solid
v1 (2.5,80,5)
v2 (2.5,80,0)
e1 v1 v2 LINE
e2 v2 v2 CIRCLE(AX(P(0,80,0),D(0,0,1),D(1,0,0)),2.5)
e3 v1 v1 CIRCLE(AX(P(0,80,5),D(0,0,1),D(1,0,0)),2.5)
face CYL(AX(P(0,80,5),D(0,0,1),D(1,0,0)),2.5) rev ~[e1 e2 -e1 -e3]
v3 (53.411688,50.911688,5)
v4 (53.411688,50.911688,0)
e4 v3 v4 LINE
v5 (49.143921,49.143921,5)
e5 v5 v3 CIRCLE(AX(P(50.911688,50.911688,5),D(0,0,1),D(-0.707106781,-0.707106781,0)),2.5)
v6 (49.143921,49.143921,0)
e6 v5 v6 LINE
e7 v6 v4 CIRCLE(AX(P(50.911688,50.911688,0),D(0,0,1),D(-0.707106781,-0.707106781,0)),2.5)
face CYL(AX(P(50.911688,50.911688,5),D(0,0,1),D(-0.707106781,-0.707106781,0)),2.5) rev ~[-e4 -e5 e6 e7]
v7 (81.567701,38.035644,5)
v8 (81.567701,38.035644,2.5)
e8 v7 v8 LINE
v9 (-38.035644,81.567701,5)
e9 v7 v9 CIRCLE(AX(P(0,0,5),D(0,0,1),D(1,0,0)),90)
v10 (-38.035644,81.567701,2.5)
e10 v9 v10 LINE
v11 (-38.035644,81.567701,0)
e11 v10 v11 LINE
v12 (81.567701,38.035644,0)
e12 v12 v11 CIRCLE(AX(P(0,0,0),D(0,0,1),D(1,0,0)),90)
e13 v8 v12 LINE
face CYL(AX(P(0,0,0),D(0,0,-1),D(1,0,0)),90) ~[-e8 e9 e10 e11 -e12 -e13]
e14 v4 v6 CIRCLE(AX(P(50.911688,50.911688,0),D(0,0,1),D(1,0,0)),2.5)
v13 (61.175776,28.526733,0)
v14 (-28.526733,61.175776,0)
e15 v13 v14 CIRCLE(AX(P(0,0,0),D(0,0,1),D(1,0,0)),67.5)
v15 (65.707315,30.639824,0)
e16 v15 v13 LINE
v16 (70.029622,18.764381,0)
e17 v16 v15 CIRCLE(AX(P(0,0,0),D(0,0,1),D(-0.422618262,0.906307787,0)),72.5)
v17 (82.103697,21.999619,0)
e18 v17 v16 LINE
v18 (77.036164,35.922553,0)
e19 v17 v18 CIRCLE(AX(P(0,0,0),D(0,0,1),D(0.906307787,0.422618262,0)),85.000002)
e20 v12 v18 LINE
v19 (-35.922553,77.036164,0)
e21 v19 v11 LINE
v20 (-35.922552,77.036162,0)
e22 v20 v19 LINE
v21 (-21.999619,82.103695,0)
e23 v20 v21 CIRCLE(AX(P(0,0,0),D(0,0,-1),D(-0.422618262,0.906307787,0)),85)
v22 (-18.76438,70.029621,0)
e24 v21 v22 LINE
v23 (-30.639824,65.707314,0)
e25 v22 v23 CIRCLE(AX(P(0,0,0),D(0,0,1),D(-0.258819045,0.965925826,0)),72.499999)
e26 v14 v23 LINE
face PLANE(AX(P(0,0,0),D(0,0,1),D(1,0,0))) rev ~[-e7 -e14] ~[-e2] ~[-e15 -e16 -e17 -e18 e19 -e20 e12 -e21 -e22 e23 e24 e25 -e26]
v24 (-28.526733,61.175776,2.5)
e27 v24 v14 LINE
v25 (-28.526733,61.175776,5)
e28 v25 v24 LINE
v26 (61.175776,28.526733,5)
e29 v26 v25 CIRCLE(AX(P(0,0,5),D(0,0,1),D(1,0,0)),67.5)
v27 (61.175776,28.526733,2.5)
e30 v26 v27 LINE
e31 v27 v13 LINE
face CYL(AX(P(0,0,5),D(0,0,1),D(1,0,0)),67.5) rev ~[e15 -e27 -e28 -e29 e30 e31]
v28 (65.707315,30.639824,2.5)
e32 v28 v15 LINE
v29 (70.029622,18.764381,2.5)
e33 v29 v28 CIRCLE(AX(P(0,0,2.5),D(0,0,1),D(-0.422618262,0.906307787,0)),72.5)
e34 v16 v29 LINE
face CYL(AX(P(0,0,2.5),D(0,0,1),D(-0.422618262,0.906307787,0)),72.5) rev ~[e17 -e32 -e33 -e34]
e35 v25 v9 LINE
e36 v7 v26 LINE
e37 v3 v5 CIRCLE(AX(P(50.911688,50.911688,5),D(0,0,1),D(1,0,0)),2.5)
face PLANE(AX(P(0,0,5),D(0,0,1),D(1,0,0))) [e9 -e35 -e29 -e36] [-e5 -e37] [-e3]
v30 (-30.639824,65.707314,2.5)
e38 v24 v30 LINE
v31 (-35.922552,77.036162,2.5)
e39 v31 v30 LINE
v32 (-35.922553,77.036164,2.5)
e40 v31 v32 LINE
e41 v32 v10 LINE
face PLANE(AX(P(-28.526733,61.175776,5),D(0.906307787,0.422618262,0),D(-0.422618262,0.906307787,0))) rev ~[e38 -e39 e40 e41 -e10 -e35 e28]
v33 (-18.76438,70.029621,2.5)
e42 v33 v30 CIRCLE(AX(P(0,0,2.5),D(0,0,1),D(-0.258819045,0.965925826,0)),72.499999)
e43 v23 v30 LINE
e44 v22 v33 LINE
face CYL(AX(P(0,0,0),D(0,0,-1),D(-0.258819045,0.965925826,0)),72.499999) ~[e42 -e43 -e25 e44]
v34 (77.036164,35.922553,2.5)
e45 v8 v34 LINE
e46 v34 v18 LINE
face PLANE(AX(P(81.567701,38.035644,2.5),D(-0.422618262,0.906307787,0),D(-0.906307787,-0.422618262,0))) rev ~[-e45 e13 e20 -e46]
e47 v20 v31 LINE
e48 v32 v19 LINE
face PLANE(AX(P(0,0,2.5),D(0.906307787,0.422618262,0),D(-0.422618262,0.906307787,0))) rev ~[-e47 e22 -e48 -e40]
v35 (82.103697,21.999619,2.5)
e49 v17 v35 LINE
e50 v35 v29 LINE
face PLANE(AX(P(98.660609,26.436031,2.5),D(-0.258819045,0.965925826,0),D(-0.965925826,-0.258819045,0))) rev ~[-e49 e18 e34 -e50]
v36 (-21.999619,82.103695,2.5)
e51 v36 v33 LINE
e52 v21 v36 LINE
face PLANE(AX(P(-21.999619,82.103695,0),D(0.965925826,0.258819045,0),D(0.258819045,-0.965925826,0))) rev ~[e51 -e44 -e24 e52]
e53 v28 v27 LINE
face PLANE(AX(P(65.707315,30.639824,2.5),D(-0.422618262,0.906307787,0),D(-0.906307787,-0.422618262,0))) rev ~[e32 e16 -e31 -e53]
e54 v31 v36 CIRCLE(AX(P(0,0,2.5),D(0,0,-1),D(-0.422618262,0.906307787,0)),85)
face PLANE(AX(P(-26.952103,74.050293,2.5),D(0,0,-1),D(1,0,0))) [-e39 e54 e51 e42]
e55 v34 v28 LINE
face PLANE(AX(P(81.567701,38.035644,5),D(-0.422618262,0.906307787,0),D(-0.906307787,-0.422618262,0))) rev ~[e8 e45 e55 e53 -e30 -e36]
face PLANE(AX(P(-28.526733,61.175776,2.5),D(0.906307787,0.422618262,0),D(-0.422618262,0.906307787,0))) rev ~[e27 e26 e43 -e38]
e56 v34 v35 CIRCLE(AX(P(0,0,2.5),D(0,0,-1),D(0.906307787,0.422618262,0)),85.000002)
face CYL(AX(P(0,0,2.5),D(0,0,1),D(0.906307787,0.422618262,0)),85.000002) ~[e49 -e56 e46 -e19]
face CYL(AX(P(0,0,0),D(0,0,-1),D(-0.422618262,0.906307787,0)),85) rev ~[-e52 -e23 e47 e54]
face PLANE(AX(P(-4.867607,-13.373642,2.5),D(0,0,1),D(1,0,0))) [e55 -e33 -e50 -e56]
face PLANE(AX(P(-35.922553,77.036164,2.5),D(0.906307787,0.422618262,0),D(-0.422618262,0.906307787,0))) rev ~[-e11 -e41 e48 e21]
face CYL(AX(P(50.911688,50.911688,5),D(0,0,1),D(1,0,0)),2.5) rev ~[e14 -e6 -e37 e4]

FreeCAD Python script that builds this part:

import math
import FreeCAD as App
import Part
import Sketcher

V = App.Vector
Q = App.Units.Quantity


def add_polygon(sketch, points):
    """Adds a closed chain of lines whose ends are joined by coincident constraints."""
    first, n = sketch.GeometryCount, len(points)
    for a, b in zip(points, points[1:] + points[:1]):
        sketch.addGeometry(Part.LineSegment(App.Vector(*a, 0), App.Vector(*b, 0)), False)
    for i in range(n):
        sketch.addConstraint(Sketcher.Constraint("Coincident", first + i, 2, first + (i + 1) % n, 1))

doc = App.newDocument("Part")
body = doc.addObject("PartDesign::Body", "Body")

# Sketch on XY plane
sketch1 = doc.addObject("Sketcher::SketchObject", "Sketch")
body.addObject(sketch1)
sketch1.AttachmentSupport = (doc.XY_Plane, [""])
sketch1.MapMode = "FlatFace"
sketch1.addGeometry(Part.Circle(V(0, 0, 0), V(0, 0, 1), 90), False)
sketch1.addConstraint(Sketcher.Constraint("Coincident", 0, 3, -1, 1))
sketch1.addConstraint(Sketcher.Constraint("Diameter", 0, 180.0))
pad1 = doc.addObject("PartDesign::Pad", "Pad")
body.addObject(pad1)
pad1.Profile = sketch1
pad1.Length = 5

# Sketch on XY plane
sketch2 = doc.addObject("Sketcher::SketchObject", "Sketch001")
body.addObject(sketch2)
sketch2.AttachmentSupport = (doc.XY_Plane, [""])
sketch2.MapMode = "FlatFace"
sketch2.AttachmentOffset = App.Placement(V(0, 0, 5), App.Rotation())
sketch2.addGeometry(Part.Circle(V(0, 0, 0), V(0, 0, 1), 68), False)
sketch2.addConstraint(Sketcher.Constraint("Coincident", 0, 3, -1, 1))
sketch2.addConstraint(Sketcher.Constraint("Diameter", 0, 135.0))
pocket1 = doc.addObject("PartDesign::Pocket", "Pocket")
body.addObject(pocket1)
pocket1.Profile = sketch2
pocket1.Length = 5

# Sketch on XY plane
sketch3 = doc.addObject("Sketcher::SketchObject", "Sketch002")
body.addObject(sketch3)
sketch3.AttachmentSupport = (doc.XY_Plane, [""])
sketch3.MapMode = "FlatFace"
sketch3.AttachmentOffset = App.Placement(V(0, 0, 5), App.Rotation())
sketch3.addGeometry(Part.Circle(V(0, 80, 0), V(0, 0, 1), 2.5), False)
sketch3.addConstraint(Sketcher.Constraint("PointOnObject", 0, 3, -2))
sketch3.addConstraint(Sketcher.Constraint("Diameter", 0, 5.0))
sketch3.addConstraint(Sketcher.Constraint("DistanceY", -1, 1, 0, 3, 80.0))
pocket2 = doc.addObject("PartDesign::Pocket", "Pocket001")
body.addObject(pocket2)
pocket2.Profile = sketch3
pocket2.Type = "ThroughAll"

# Sketch on XY plane
sketch4 = doc.addObject("Sketcher::SketchObject", "Sketch003")
body.addObject(sketch4)
sketch4.AttachmentSupport = (doc.XY_Plane, [""])
sketch4.MapMode = "FlatFace"
sketch4.AttachmentOffset = App.Placement(V(0, 0, 5), App.Rotation())
sketch4.addGeometry(Part.ArcOfCircle(Part.Circle(V(50.9, 50.9, 0), V(0, 0, 1), 2.5), math.radians(-135), math.radians(0)), False)
sketch4.addGeometry(Part.ArcOfCircle(Part.Circle(V(50.9, 50.9, 0), V(0, 0, 1), 2.5), math.radians(0), math.radians(225)), False)
sketch4.addConstraint(Sketcher.Constraint("Tangent", 0, 1, 1, 2))
sketch4.addConstraint(Sketcher.Constraint("Coincident", 1, 1, 0, 2))
sketch4.addConstraint(Sketcher.Constraint("Horizontal", 0, 3, 1, 1))
sketch4.addConstraint(Sketcher.Constraint("Radius", 0, 2.5))
sketch4.addConstraint(Sketcher.Constraint("DistanceX", -1, 1, 0, 3, 50.911688))
sketch4.addConstraint(Sketcher.Constraint("DistanceY", -1, 1, 0, 3, 50.911688))
sketch4.addConstraint(Sketcher.Constraint("DistanceX", -1, 1, 0, 1, 49.143921))
pocket3 = doc.addObject("PartDesign::Pocket", "Pocket002")
body.addObject(pocket3)
pocket3.Profile = sketch4
pocket3.Type = "ThroughAll"

# Sketch on XY plane
sketch5 = doc.addObject("Sketcher::SketchObject", "Sketch004")
body.addObject(sketch5)
sketch5.AttachmentSupport = (doc.XY_Plane, [""])
sketch5.MapMode = "FlatFace"
sketch5.AttachmentOffset = App.Placement(V(0, 0, 5), App.Rotation())
sketch5.addGeometry(Part.LineSegment(V(-29, 61, 0), V(-38, 82, 0)), False)
sketch5.addGeometry(Part.ArcOfCircle(Part.Circle(V(0, 0, 0), V(0, 0, 1), 90), math.radians(115), math.radians(385)), False)
sketch5.addGeometry(Part.LineSegment(V(82, 38, 0), V(61, 29, 0)), False)
sketch5.addGeometry(Part.ArcOfCircle(Part.Circle(V(0, 0, 0), V(0, 0, 1), 68), math.radians(115), math.radians(385)), False)
sketch5.addConstraint(Sketcher.Constraint("Coincident", 0, 2, 1, 1))
sketch5.addConstraint(Sketcher.Constraint("Coincident", 1, 2, 2, 1))
sketch5.addConstraint(Sketcher.Constraint("Coincident", 2, 2, 3, 2))
sketch5.addConstraint(Sketcher.Constraint("Coincident", 3, 1, 0, 1))
sketch5.addConstraint(Sketcher.Constraint("Coincident", 1, 3, -1, 1))
sketch5.addConstraint(Sketcher.Constraint("Coincident", 3, 3, -1, 1))
sketch5.addConstraint(Sketcher.Constraint("Perpendicular", 0, 2))
sketch5.addConstraint(Sketcher.Constraint("Radius", 1, 90.0))
sketch5.addConstraint(Sketcher.Constraint("Radius", 3, 67.5))
sketch5.addConstraint(Sketcher.Constraint("Angle", 0, Q("115 deg")))
sketch5.addConstraint(Sketcher.Constraint("DistanceY", -1, 1, 0, 2, 81.567701))
sketch5.addConstraint(Sketcher.Constraint("DistanceX", -1, 1, 1, 2, 81.567701))
pocket4 = doc.addObject("PartDesign::Pocket", "Pocket003")
body.addObject(pocket4)
pocket4.Profile = sketch5
pocket4.Length = 2.5

# Sketch on XY plane
sketch6 = doc.addObject("Sketcher::SketchObject", "Sketch005")
body.addObject(sketch6)
sketch6.AttachmentSupport = (doc.XY_Plane, [""])
sketch6.MapMode = "FlatFace"
sketch6.AttachmentOffset = App.Placement(V(0, 0, 2.5), App.Rotation())
sketch6.addGeometry(Part.ArcOfCircle(Part.Circle(V(0, 0, 0), V(0, 0, 1), 85), math.radians(115), math.radians(385)), False)
sketch6.addGeometry(Part.LineSegment(V(-35.9, 77, 0), V(-38, 81.6, 0)), False)
sketch6.addGeometry(Part.ArcOfCircle(Part.Circle(V(0, 0, 0), V(0, 0, 1), 90), math.radians(115), math.radians(385)), False)
sketch6.addGeometry(Part.LineSegment(V(81.6, 38, 0), V(77, 35.9, 0)), False)
sketch6.addConstraint(Sketcher.Constraint("Coincident", 0, 1, 1, 1))
sketch6.addConstraint(Sketcher.Constraint("Coincident", 1, 2, 2, 1))
sketch6.addConstraint(Sketcher.Constraint("Coincident", 2, 2, 3, 1))
sketch6.addConstraint(Sketcher.Constraint("Coincident", 3, 2, 0, 2))
sketch6.addConstraint(Sketcher.Constraint("Coincident", 0, 3, -1, 1))
sketch6.addConstraint(Sketcher.Constraint("Coincident", 2, 3, -1, 1))
sketch6.addConstraint(Sketcher.Constraint("Perpendicular", 1, 3))
sketch6.addConstraint(Sketcher.Constraint("Radius", 2, 90.0))
sketch6.addConstraint(Sketcher.Constraint("Angle", 1, Q("115 deg")))
sketch6.addConstraint(Sketcher.Constraint("Radius", 0, 85.000002))
sketch6.addConstraint(Sketcher.Constraint("DistanceY", -1, 1, 1, 2, 81.567701))
sketch6.addConstraint(Sketcher.Constraint("DistanceX", -1, 1, 2, 2, 81.567701))
pocket5 = doc.addObject("PartDesign::Pocket", "Pocket004")
body.addObject(pocket5)
pocket5.Profile = sketch6
pocket5.Type = "ThroughAll"

# Sketch on XY plane
sketch7 = doc.addObject("Sketcher::SketchObject", "Sketch006")
body.addObject(sketch7)
sketch7.AttachmentSupport = (doc.XY_Plane, [""])
sketch7.MapMode = "FlatFace"
sketch7.AttachmentOffset = App.Placement(V(0, 0, 2.5), App.Rotation())
sketch7.addGeometry(Part.LineSegment(V(-28.5, 61.2, 0), V(-30.6, 65.7, 0)), False)
sketch7.addGeometry(Part.ArcOfCircle(Part.Circle(V(0, 0, 0), V(0, 0, 1), 72.5), math.radians(115), math.radians(385)), False)
sketch7.addGeometry(Part.LineSegment(V(65.7, 30.6, 0), V(61.2, 28.5, 0)), False)
sketch7.addGeometry(Part.ArcOfCircle(Part.Circle(V(0, 0, 0), V(0, 0, 1), 67.5), math.radians(115), math.radians(385)), False)
sketch7.addConstraint(Sketcher.Constraint("Coincident", 0, 2, 1, 1))
sketch7.addConstraint(Sketcher.Constraint("Coincident", 1, 2, 2, 1))
sketch7.addConstraint(Sketcher.Constraint("Coincident", 2, 2, 3, 2))
sketch7.addConstraint(Sketcher.Constraint("Coincident", 3, 1, 0, 1))
sketch7.addConstraint(Sketcher.Constraint("Coincident", 1, 3, -1, 1))
sketch7.addConstraint(Sketcher.Constraint("Coincident", 3, 3, -1, 1))
sketch7.addConstraint(Sketcher.Constraint("Perpendicular", 0, 2))
sketch7.addConstraint(Sketcher.Constraint("Radius", 1, 72.5))
sketch7.addConstraint(Sketcher.Constraint("Radius", 3, 67.5))
sketch7.addConstraint(Sketcher.Constraint("Angle", 0, Q("115 deg")))
sketch7.addConstraint(Sketcher.Constraint("DistanceX", 0, 2, 2, 2, 91.8156))
sketch7.addConstraint(Sketcher.Constraint("DistanceY", 1, 2, 0, 2, 35.067491))
pocket6 = doc.addObject("PartDesign::Pocket", "Pocket005")
body.addObject(pocket6)
pocket6.Profile = sketch7
pocket6.Type = "ThroughAll"

# Sketch on XY plane
sketch8 = doc.addObject("Sketcher::SketchObject", "Sketch007")
body.addObject(sketch8)
sketch8.AttachmentSupport = (doc.XY_Plane, [""])
sketch8.MapMode = "FlatFace"
sketch8.AttachmentOffset = App.Placement(V(0, 0, 2.5), App.Rotation())
add_polygon(sketch8, [(99, 26), (0, 0), (-50, 108), (-139, -34), (-66, -86), (32, -90), (89, -68)])  # lines 0-6
sketch8.addConstraint(Sketcher.Constraint("Coincident", 0, 2, -1, 1))
sketch8.addConstraint(Sketcher.Constraint("Angle", 0, Q("-165 deg")))
sketch8.addConstraint(Sketcher.Constraint("Angle", 1, Q("115 deg")))
sketch8.addConstraint(Sketcher.Constraint("Distance", 4, 98.174001))
sketch8.addConstraint(Sketcher.Constraint("Distance", 2, 166.8536))
sketch8.addConstraint(Sketcher.Constraint("DistanceY", 4, 2, 3, 2, 4.241399))
sketch8.addConstraint(Sketcher.Constraint("Distance", 0, 102.140979))
sketch8.addConstraint(Sketcher.Constraint("Distance", 3, 89.304159))
sketch8.addConstraint(Sketcher.Constraint("DistanceX", 3, 2, -1, 1, 65.965511))
sketch8.addConstraint(Sketcher.Constraint("DistanceY", 3, 2, -1, 1, 85.60162))
sketch8.addConstraint(Sketcher.Constraint("DistanceX", 2, 2, 1, 2, 88.259169))
sketch8.addConstraint(Sketcher.Constraint("DistanceX", 4, 2, 5, 2, 56.728709))
sketch8.addConstraint(Sketcher.Constraint("DistanceY", 5, 2, 1, 2, 175.530779))
pocket7 = doc.addObject("PartDesign::Pocket", "Pocket006")
body.addObject(pocket7)
pocket7.Profile = sketch8
pocket7.Type = "ThroughAll"

# Sketch on XY plane
sketch9 = doc.addObject("Sketcher::SketchObject", "Sketch008")
body.addObject(sketch9)
sketch9.AttachmentSupport = (doc.XY_Plane, [""])
sketch9.MapMode = "FlatFace"
sketch9.addGeometry(Part.LineSegment(V(-22, 82, 0), V(-19, 70, 0)), False)
sketch9.addGeometry(Part.ArcOfCircle(Part.Circle(V(0, 0, 0), V(0, 0, 1), 72), math.radians(105), math.radians(115)), False)
sketch9.addGeometry(Part.LineSegment(V(-31, 66, 0), V(-36, 77, 0)), False)
sketch9.addGeometry(Part.ArcOfCircle(Part.Circle(V(0, 0, 0), V(0, 0, 1), 85), math.radians(105), math.radians(115)), False)
sketch9.addConstraint(Sketcher.Constraint("Coincident", 0, 2, 1, 1))
sketch9.addConstraint(Sketcher.Constraint("Coincident", 1, 2, 2, 1))
sketch9.addConstraint(Sketcher.Constraint("Coincident", 2, 2, 3, 2))
sketch9.addConstraint(Sketcher.Constraint("Coincident", 3, 1, 0, 1))
sketch9.addConstraint(Sketcher.Constraint("Coincident", 1, 3, -1, 1))
sketch9.addConstraint(Sketcher.Constraint("Coincident", 3, 3, -1, 1))
sketch9.addConstraint(Sketcher.Constraint("Radius", 3, 85.0))
sketch9.addConstraint(Sketcher.Constraint("Radius", 1, 72.499999))
sketch9.addConstraint(Sketcher.Constraint("Angle", 0, Q("-75 deg")))
sketch9.addConstraint(Sketcher.Constraint("Angle", 2, Q("115 deg")))
sketch9.addConstraint(Sketcher.Constraint("DistanceX", 0, 2, -1, 1, 18.76438))
sketch9.addConstraint(Sketcher.Constraint("DistanceY", -1, 1, 2, 2, 77.036162))
pocket8 = doc.addObject("PartDesign::Pocket", "Pocket007")
body.addObject(pocket8)
pocket8.Profile = sketch9
pocket8.Length = 2.5
pocket8.Reversed = True

doc.recompute()
